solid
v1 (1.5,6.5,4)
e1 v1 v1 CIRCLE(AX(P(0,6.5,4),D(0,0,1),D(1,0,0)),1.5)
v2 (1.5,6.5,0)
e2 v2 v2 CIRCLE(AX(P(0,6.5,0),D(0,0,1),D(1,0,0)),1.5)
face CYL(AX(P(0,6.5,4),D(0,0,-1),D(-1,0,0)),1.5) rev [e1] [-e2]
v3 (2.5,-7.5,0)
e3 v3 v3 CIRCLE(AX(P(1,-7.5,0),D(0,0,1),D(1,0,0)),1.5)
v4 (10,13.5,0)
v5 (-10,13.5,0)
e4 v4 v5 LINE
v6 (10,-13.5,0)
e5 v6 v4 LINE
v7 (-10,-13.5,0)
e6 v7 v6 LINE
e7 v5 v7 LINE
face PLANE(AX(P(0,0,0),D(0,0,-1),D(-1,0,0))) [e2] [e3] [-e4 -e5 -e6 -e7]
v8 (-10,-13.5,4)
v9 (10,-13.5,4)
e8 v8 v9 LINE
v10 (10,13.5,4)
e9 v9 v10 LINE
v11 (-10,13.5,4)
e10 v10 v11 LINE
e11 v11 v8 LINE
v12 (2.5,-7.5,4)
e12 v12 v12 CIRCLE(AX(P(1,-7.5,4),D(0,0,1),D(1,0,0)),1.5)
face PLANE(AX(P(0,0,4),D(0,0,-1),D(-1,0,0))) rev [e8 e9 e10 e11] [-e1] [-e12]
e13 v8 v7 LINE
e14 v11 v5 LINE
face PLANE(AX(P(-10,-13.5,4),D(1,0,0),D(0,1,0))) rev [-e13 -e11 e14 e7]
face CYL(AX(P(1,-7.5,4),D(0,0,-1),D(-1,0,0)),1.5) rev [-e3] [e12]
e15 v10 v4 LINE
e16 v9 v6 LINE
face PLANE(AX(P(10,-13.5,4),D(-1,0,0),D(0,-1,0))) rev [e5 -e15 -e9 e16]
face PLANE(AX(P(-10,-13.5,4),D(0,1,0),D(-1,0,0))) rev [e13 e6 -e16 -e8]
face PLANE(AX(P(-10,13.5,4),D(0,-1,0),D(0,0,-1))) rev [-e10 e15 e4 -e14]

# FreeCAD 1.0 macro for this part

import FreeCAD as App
import Part
import Sketcher

doc = App.newDocument("Part")
body = doc.addObject("PartDesign::Body", "Body")

# Sketch on XY plane
sketch1 = body.newObject("Sketcher::SketchObject", "Sketch")
sketch1.AttachmentSupport = (doc.getObject("XY_Plane"), [""])
sketch1.MapMode = "FlatFace"
sketch1.addGeometry(Part.LineSegment(App.Vector(-10, 13.5, 0), App.Vector(-10, -13.5, 0)), False)
sketch1.addGeometry(Part.LineSegment(App.Vector(-10, -13.5, 0), App.Vector(10, -13.5, 0)), False)
sketch1.addGeometry(Part.LineSegment(App.Vector(10, -13.5, 0), App.Vector(10, 13.5, 0)), False)
sketch1.addGeometry(Part.LineSegment(App.Vector(10, 13.5, 0), App.Vector(-10, 13.5, 0)), False)
sketch1.addGeometry(Part.Circle(App.Vector(1, -7.5, 0), App.Vector(0, 0, 1), 1.5), False)
sketch1.addGeometry(Part.Circle(App.Vector(0, 6.5, 0), App.Vector(0, 0, 1), 1.5), False)
sketch1.addConstraint(Sketcher.Constraint("Coincident", 0, 2, 1, 1))
sketch1.addConstraint(Sketcher.Constraint("Coincident", 1, 2, 2, 1))
sketch1.addConstraint(Sketcher.Constraint("Coincident", 2, 2, 3, 1))
sketch1.addConstraint(Sketcher.Constraint("Coincident", 3, 2, 0, 1))
sketch1.addConstraint(Sketcher.Constraint("Vertical", 0))
sketch1.addConstraint(Sketcher.Constraint("Horizontal", 1))
sketch1.addConstraint(Sketcher.Constraint("Vertical", 2))
sketch1.addConstraint(Sketcher.Constraint("Horizontal", 3))
sketch1.addConstraint(Sketcher.Constraint("Equal", 4, 5))
sketch1.addConstraint(Sketcher.Constraint("Symmetric", 0, 2, 2, 2, -1, 1))
sketch1.addConstraint(Sketcher.Constraint("PointOnObject", 5, 3, -2))
sketch1.addConstraint(Sketcher.Constraint("Diameter", 4, 3.0))
sketch1.addConstraint(Sketcher.Constraint("DistanceX", 1, 1, 1, 2, 20.0))
sketch1.addConstraint(Sketcher.Constraint("DistanceY", 0, 2, 0, 1, 27.0))
sketch1.addConstraint(Sketcher.Constraint("DistanceX", -1, 1, 4, 3, 1.0))
sketch1.addConstraint(Sketcher.Constraint("DistanceY", 4, 3, 5, 3, 14.0))
sketch1.addConstraint(Sketcher.Constraint("DistanceY", 0, 2, 4, 3, 6.0))
pad1 = body.newObject("PartDesign::Pad", "Pad")
pad1.Profile = sketch1
pad1.Length = 4

doc.recompute()
